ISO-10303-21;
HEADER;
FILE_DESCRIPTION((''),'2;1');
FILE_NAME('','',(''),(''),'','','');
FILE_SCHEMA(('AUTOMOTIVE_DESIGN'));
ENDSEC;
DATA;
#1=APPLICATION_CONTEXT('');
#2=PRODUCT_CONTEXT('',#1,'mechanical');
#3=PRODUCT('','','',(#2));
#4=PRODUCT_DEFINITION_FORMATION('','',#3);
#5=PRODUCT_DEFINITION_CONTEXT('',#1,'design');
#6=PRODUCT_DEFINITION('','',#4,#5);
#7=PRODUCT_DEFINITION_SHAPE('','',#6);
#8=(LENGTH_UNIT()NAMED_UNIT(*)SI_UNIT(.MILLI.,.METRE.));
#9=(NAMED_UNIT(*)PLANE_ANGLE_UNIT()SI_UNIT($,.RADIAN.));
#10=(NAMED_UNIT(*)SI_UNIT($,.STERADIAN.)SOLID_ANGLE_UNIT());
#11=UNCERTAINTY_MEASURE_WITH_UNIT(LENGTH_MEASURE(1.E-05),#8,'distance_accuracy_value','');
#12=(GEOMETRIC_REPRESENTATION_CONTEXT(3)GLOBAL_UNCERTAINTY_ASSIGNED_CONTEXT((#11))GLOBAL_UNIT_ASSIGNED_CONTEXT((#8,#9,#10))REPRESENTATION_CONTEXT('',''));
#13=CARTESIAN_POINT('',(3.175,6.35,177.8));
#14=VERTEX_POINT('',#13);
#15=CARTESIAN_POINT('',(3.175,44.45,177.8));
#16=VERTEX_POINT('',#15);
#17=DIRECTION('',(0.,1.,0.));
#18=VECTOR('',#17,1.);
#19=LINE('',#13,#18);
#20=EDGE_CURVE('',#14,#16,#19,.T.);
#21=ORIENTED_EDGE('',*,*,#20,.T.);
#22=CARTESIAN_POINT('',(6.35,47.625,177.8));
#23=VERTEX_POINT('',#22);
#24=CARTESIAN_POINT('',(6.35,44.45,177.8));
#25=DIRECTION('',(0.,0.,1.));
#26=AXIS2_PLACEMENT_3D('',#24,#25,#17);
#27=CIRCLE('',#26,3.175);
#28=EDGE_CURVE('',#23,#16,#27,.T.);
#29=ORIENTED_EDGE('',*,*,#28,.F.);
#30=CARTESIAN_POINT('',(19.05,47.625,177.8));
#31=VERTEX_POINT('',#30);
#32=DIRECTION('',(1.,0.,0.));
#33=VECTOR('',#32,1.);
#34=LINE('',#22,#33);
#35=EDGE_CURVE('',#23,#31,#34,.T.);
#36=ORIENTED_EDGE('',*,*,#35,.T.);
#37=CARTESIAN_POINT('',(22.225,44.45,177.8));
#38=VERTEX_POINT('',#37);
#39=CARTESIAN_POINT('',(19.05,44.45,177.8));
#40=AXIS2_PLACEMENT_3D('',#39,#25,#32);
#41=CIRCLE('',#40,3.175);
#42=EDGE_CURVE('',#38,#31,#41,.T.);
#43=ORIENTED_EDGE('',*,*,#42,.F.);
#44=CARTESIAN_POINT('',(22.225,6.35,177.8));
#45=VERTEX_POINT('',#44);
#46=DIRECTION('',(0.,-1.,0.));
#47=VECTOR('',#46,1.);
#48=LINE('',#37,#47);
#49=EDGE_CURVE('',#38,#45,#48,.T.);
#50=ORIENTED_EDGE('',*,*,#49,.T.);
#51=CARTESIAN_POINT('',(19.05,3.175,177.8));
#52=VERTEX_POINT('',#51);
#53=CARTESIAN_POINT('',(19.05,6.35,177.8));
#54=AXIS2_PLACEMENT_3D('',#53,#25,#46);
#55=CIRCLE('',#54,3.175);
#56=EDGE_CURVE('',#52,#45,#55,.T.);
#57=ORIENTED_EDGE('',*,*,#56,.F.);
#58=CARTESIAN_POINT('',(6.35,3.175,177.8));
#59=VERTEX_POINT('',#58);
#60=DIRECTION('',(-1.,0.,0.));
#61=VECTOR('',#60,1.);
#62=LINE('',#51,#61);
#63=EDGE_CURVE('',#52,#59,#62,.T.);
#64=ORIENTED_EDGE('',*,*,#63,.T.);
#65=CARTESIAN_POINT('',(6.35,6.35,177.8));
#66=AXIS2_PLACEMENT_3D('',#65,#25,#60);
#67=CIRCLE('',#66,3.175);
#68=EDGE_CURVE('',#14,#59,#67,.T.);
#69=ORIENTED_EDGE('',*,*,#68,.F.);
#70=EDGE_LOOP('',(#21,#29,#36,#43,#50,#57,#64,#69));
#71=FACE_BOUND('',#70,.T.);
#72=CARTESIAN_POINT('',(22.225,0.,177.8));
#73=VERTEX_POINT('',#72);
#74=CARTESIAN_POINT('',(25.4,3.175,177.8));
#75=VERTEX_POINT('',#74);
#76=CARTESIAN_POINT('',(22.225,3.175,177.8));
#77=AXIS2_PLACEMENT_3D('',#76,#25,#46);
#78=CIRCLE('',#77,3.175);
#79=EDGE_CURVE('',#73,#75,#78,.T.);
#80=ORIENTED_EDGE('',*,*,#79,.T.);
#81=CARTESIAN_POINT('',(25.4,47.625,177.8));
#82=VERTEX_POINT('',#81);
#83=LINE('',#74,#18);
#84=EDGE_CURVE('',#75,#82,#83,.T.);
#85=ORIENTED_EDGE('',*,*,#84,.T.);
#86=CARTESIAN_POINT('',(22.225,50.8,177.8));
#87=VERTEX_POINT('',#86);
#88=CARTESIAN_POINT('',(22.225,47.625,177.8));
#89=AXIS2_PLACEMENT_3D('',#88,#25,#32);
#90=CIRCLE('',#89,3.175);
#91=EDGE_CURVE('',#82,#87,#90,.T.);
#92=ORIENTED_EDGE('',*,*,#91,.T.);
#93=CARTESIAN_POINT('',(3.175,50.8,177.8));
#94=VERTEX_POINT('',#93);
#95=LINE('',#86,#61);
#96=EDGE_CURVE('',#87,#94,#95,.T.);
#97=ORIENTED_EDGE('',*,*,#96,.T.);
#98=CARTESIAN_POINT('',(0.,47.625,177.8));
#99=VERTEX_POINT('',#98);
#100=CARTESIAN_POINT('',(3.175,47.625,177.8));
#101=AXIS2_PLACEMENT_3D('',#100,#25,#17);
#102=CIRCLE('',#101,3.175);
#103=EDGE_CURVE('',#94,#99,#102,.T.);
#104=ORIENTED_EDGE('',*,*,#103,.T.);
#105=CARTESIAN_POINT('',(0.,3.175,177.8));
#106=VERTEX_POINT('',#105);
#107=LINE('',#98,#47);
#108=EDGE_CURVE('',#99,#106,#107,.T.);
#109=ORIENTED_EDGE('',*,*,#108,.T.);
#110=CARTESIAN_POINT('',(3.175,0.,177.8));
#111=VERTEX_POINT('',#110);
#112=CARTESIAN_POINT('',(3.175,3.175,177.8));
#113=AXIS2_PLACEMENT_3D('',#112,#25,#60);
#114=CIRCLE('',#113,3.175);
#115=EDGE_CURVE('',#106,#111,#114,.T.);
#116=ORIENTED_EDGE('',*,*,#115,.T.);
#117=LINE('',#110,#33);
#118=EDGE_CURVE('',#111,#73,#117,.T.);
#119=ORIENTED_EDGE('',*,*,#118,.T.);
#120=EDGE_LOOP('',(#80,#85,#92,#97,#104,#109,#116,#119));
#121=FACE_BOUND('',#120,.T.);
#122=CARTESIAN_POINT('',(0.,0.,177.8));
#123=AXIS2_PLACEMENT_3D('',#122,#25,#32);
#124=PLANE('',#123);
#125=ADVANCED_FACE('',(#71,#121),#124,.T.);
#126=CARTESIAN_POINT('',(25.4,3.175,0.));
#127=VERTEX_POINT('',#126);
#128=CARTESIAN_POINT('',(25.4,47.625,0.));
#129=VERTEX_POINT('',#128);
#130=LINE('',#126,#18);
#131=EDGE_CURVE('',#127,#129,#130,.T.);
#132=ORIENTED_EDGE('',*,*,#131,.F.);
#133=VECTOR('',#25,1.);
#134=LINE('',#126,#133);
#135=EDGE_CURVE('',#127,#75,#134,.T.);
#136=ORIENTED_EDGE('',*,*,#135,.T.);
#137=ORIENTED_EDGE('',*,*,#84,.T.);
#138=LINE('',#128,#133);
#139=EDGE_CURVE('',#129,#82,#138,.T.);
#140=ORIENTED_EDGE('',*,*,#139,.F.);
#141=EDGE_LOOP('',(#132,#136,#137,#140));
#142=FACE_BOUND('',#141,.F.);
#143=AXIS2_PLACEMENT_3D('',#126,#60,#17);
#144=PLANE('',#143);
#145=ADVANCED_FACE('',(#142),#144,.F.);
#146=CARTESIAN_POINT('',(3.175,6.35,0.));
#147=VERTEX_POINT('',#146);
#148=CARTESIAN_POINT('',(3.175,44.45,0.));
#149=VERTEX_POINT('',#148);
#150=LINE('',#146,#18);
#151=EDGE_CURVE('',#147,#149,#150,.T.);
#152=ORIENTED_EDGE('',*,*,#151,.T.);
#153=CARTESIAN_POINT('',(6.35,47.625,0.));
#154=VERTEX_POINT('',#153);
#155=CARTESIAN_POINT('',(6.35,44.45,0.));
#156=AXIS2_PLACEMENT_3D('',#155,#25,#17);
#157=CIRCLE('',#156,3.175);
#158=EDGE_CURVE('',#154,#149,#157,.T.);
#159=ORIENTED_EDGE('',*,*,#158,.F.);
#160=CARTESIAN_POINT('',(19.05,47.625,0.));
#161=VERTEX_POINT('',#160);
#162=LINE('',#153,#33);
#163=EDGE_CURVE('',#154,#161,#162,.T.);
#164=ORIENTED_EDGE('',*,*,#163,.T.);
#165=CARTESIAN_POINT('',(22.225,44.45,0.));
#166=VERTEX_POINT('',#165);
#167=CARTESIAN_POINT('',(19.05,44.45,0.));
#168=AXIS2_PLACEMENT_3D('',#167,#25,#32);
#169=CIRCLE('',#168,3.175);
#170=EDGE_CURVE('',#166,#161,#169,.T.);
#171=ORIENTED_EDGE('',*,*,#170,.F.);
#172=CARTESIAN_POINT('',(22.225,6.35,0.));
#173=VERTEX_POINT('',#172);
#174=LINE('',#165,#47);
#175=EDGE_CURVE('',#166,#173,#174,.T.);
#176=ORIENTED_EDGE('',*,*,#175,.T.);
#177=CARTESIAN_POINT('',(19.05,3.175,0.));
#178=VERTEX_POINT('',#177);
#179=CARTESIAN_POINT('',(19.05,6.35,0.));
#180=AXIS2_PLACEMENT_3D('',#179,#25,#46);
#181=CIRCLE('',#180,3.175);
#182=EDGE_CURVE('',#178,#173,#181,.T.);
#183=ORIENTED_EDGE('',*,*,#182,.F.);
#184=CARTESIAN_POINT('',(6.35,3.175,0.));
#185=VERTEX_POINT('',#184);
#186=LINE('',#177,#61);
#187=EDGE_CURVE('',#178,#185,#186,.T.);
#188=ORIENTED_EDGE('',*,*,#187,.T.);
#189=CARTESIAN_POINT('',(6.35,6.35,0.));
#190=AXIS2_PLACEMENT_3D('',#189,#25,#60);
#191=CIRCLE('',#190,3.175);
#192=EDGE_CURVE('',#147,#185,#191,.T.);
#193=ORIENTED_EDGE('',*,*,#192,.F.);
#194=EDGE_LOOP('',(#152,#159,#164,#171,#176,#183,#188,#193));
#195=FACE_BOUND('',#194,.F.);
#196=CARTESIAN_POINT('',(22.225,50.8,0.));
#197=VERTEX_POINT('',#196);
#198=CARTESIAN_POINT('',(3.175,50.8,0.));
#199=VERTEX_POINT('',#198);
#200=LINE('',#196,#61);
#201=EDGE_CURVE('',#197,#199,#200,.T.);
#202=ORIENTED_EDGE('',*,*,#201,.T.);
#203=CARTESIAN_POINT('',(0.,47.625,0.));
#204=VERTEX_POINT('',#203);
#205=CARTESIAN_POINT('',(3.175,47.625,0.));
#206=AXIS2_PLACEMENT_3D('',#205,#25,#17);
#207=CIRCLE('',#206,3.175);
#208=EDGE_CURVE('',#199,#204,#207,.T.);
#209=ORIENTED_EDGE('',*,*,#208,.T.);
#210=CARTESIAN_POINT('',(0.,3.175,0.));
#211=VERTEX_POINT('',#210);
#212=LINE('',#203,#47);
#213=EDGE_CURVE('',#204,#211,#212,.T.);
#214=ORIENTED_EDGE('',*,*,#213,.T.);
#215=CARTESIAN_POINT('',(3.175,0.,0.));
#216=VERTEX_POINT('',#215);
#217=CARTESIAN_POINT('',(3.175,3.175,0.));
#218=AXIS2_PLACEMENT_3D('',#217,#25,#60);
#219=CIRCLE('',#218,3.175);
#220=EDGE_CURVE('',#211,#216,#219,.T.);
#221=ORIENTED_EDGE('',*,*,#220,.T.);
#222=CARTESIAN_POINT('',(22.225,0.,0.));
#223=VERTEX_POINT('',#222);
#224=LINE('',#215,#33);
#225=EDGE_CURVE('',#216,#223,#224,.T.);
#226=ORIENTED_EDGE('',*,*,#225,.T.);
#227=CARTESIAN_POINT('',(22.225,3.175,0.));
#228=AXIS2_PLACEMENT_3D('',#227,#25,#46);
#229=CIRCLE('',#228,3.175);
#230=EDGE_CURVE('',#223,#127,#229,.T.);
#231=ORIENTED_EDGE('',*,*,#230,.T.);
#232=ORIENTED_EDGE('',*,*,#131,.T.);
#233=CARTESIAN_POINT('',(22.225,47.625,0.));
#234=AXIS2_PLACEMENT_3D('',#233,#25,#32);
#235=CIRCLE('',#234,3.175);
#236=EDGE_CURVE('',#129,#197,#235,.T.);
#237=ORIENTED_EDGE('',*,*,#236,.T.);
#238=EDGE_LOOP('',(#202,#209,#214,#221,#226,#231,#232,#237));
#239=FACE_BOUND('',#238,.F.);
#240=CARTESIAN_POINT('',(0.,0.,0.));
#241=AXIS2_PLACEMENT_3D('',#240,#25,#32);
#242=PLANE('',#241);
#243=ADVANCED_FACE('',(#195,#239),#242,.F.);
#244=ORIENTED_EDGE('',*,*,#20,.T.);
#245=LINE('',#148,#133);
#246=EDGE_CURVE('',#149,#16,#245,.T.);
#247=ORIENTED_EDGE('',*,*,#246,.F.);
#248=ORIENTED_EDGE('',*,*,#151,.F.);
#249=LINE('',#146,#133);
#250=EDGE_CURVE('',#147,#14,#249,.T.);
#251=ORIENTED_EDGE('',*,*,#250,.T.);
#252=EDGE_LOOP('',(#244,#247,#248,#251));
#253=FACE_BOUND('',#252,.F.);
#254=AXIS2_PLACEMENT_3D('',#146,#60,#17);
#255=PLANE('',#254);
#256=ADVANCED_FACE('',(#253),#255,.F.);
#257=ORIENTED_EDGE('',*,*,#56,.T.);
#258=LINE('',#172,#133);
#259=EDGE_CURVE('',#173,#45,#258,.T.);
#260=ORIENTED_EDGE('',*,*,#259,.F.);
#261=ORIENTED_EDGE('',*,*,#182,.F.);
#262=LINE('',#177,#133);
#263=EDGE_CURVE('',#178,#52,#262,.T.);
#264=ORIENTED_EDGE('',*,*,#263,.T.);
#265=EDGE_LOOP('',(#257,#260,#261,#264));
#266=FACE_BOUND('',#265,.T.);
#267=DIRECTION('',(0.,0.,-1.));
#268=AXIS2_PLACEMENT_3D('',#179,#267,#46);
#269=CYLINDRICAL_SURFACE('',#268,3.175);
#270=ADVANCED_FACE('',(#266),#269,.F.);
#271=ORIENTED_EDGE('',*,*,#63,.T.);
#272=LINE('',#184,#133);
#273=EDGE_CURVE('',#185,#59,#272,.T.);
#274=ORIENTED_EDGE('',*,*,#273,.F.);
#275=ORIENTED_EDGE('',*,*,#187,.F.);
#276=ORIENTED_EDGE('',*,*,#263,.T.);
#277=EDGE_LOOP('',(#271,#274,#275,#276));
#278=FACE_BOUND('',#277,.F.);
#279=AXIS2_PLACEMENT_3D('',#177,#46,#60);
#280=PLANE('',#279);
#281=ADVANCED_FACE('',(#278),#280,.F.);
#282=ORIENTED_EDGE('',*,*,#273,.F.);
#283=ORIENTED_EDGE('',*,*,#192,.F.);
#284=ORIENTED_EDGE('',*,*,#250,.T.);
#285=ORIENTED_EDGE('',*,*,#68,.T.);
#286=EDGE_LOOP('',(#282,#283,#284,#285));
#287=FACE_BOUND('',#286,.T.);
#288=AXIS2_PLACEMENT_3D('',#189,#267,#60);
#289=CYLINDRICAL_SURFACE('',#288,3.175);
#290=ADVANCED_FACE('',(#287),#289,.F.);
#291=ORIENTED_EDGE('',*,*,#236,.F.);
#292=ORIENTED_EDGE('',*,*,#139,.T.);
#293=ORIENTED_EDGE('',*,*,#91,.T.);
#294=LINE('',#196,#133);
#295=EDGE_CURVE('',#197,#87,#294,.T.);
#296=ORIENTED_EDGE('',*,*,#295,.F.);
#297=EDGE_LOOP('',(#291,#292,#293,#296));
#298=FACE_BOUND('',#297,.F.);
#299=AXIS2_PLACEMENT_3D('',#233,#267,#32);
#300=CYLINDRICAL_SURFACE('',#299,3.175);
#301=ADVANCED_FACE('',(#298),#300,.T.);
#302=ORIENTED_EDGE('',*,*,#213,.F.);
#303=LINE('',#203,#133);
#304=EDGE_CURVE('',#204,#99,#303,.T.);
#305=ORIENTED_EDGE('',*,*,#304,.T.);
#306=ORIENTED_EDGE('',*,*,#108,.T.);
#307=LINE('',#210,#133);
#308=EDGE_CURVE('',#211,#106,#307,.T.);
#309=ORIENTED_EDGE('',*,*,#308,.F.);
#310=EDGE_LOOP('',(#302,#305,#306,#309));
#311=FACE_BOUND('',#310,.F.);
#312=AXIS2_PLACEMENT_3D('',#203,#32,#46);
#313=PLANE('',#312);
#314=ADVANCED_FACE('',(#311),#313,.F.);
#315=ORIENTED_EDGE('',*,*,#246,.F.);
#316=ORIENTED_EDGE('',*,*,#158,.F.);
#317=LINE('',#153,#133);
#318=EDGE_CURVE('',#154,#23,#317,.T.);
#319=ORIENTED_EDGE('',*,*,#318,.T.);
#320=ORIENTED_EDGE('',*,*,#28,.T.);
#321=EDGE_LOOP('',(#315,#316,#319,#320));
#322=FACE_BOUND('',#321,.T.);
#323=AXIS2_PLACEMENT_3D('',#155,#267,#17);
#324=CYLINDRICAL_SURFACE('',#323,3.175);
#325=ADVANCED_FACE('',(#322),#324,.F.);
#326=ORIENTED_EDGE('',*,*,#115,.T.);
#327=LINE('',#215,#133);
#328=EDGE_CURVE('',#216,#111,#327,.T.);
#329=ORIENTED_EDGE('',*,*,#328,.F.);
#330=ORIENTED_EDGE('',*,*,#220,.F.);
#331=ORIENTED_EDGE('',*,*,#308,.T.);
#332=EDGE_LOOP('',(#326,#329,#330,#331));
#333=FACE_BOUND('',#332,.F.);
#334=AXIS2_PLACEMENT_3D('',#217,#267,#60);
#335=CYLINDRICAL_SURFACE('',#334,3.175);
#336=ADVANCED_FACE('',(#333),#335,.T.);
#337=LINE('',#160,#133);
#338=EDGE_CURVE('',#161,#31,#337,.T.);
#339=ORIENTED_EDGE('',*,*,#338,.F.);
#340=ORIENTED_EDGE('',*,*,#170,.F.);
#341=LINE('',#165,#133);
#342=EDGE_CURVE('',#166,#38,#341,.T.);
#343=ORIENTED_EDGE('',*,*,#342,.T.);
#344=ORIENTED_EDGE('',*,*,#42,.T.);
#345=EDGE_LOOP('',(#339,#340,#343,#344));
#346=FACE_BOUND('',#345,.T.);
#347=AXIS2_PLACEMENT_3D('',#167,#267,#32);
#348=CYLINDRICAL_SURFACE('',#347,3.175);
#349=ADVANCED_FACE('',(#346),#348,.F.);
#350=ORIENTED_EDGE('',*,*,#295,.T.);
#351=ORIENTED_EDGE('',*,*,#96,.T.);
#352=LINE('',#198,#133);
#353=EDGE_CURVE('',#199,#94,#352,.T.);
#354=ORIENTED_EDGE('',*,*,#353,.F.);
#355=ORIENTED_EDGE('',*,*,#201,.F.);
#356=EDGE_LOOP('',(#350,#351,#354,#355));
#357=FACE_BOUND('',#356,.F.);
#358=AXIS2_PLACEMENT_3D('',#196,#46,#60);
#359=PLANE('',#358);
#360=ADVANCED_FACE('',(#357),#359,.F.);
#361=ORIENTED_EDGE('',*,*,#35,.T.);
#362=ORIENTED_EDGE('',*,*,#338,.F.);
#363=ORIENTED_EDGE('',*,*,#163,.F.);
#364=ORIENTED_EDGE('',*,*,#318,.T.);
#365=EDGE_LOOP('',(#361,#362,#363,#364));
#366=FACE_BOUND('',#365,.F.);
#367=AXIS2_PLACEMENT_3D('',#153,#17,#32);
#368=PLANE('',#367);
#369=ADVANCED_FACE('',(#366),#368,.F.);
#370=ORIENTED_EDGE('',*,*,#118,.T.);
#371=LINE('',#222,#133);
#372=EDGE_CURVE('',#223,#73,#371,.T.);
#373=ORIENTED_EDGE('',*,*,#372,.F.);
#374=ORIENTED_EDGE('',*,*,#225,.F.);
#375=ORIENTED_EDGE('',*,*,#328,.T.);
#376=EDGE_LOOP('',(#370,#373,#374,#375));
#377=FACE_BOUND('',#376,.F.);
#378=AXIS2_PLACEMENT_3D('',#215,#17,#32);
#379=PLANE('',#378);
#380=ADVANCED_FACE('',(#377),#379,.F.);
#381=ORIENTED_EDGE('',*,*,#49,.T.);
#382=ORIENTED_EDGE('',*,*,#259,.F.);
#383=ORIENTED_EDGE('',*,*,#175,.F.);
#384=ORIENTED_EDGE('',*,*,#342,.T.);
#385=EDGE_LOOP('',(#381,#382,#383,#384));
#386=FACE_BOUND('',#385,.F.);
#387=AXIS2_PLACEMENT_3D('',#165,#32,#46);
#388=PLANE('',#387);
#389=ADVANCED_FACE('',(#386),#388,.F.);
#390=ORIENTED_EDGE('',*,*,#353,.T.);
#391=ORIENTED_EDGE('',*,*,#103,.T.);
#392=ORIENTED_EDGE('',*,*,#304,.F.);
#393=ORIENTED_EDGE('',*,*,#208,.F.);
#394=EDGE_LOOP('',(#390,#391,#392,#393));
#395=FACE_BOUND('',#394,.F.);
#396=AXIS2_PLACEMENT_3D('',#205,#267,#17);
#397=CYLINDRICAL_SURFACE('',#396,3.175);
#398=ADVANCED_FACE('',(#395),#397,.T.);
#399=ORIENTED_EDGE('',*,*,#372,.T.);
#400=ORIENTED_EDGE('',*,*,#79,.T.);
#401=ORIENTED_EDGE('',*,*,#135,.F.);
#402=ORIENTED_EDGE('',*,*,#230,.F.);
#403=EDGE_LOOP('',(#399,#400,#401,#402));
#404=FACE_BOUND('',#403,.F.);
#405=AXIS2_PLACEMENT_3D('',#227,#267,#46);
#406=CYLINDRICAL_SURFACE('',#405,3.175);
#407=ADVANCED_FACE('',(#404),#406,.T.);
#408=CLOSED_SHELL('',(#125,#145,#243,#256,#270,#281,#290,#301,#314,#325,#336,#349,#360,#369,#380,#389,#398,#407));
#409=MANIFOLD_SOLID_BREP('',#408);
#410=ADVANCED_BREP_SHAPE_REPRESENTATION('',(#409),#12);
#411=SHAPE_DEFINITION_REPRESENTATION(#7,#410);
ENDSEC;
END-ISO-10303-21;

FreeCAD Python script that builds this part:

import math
import FreeCAD as App
import Part
import Sketcher
Q = App.Units.Quantity

doc = App.newDocument("Part")
params = doc.addObject("Spreadsheet::Sheet", "Params")
for row, (alias, value) in enumerate([
    ("sketch1_radius", "0.125 in"),
    ("pad1_length", "7 in"),
], start=1):
    params.set(f"A{row}", alias)
    params.set(f"B{row}", "=" + value)
    params.setAlias(f"B{row}", alias)

body = doc.addObject("PartDesign::Body", "Body")

# Sketch on XY plane
sketch1 = body.newObject("Sketcher::SketchObject", "Sketch")
sketch1.AttachmentSupport = (doc.getObject("XY_Plane"), [""])
sketch1.MapMode = "FlatFace"
sketch1.addGeometry([
    Part.ArcOfCircle(Part.Circle(App.Vector(3.175, 3.175, 0), App.Vector(0, 0, 1), 3.175), math.radians(180), math.radians(270)),  # 0
    Part.LineSegment(App.Vector(3.175, 0, 0), App.Vector(22.225, 0, 0)),  # 1
    Part.ArcOfCircle(Part.Circle(App.Vector(22.225, 3.175, 0), App.Vector(0, 0, 1), 3.175), math.radians(-90), math.radians(0)),  # 2
    Part.LineSegment(App.Vector(25.4, 3.175, 0), App.Vector(25.4, 47.625, 0)),  # 3
    Part.ArcOfCircle(Part.Circle(App.Vector(22.225, 47.625, 0), App.Vector(0, 0, 1), 3.175), math.radians(0), math.radians(90)),  # 4
    Part.LineSegment(App.Vector(22.225, 50.8, 0), App.Vector(3.175, 50.8, 0)),  # 5
    Part.ArcOfCircle(Part.Circle(App.Vector(3.175, 47.625, 0), App.Vector(0, 0, 1), 3.175), math.radians(90), math.radians(180)),  # 6
    Part.LineSegment(App.Vector(0, 47.625, 0), App.Vector(0, 3.175, 0)),  # 7
    Part.ArcOfCircle(Part.Circle(App.Vector(6.35, 44.45, 0), App.Vector(0, 0, 1), 3.175), math.radians(90), math.radians(180)),  # 8
    Part.LineSegment(App.Vector(6.35, 47.625, 0), App.Vector(19.05, 47.625, 0)),  # 9
    Part.ArcOfCircle(Part.Circle(App.Vector(19.05, 44.45, 0), App.Vector(0, 0, 1), 3.175), math.radians(0), math.radians(90)),  # 10
    Part.LineSegment(App.Vector(22.225, 44.45, 0), App.Vector(22.225, 6.35, 0)),  # 11
    Part.ArcOfCircle(Part.Circle(App.Vector(19.05, 6.35, 0), App.Vector(0, 0, 1), 3.175), math.radians(-90), math.radians(0)),  # 12
    Part.LineSegment(App.Vector(19.05, 3.175, 0), App.Vector(6.35, 3.175, 0)),  # 13
    Part.ArcOfCircle(Part.Circle(App.Vector(6.35, 6.35, 0), App.Vector(0, 0, 1), 3.175), math.radians(180), math.radians(270)),  # 14
    Part.LineSegment(App.Vector(3.175, 6.35, 0), App.Vector(3.175, 44.45, 0)),  # 15
], False)
sketch1.addConstraint([
    Sketcher.Constraint("Tangent", 0, 2, 1, 1),
    Sketcher.Constraint("Tangent", 1, 2, 2, 1),
    Sketcher.Constraint("Tangent", 2, 2, 3, 1),
    Sketcher.Constraint("Tangent", 3, 2, 4, 1),
    Sketcher.Constraint("Tangent", 4, 2, 5, 1),
    Sketcher.Constraint("Tangent", 5, 2, 6, 1),
    Sketcher.Constraint("Tangent", 6, 2, 7, 1),
    Sketcher.Constraint("Tangent", 7, 2, 0, 1),
    Sketcher.Constraint("Tangent", 8, 1, 9, 1),
    Sketcher.Constraint("Tangent", 9, 2, 10, 2),
    Sketcher.Constraint("Tangent", 10, 1, 11, 1),
    Sketcher.Constraint("Tangent", 11, 2, 12, 2),
    Sketcher.Constraint("Tangent", 12, 1, 13, 1),
    Sketcher.Constraint("Tangent", 13, 2, 14, 2),
    Sketcher.Constraint("Tangent", 14, 1, 15, 1),
    Sketcher.Constraint("Tangent", 15, 2, 8, 2),
    Sketcher.Constraint("Horizontal", 1),
    Sketcher.Constraint("Vertical", 3),
    Sketcher.Constraint("Horizontal", 5),
    Sketcher.Constraint("Vertical", 7),
    Sketcher.Constraint("Horizontal", 9),
    Sketcher.Constraint("Vertical", 11),
    Sketcher.Constraint("Horizontal", 13),
    Sketcher.Constraint("Vertical", 15),
    Sketcher.Constraint("Equal", 0, 2),
    Sketcher.Constraint("Equal", 2, 4),
    Sketcher.Constraint("Equal", 4, 6),
    Sketcher.Constraint("Equal", 6, 8),
    Sketcher.Constraint("Equal", 8, 10),
    Sketcher.Constraint("Equal", 10, 12),
    Sketcher.Constraint("Equal", 12, 14),
    Sketcher.Constraint("PointOnObject", 0, 2, -1),
    Sketcher.Constraint("PointOnObject", 6, 2, -2),
    Sketcher.Constraint("Horizontal", 6, 2, 8, 1),
    Sketcher.Constraint("Horizontal", 7, 2, 12, 1),
    Sketcher.Constraint("Vertical", 4, 2, 10, 1),
    Sketcher.Constraint("Vertical", 5, 2, 14, 1),
    Sketcher.Constraint("DistanceX", -1, 1, 2, 2, Q("1 in")),
    Sketcher.Constraint("DistanceY", -1, 1, 4, 2, Q("2 in")),
    Sketcher.Constraint("Radius", 0, Q("0.125 in")),
])
sketch1.setExpression("Constraints[39]", "Params.sketch1_radius")
pad1 = body.newObject("PartDesign::Pad", "Pad")
pad1.Profile = sketch1
pad1.setExpression("Length", "Params.pad1_length")

doc.recompute()
